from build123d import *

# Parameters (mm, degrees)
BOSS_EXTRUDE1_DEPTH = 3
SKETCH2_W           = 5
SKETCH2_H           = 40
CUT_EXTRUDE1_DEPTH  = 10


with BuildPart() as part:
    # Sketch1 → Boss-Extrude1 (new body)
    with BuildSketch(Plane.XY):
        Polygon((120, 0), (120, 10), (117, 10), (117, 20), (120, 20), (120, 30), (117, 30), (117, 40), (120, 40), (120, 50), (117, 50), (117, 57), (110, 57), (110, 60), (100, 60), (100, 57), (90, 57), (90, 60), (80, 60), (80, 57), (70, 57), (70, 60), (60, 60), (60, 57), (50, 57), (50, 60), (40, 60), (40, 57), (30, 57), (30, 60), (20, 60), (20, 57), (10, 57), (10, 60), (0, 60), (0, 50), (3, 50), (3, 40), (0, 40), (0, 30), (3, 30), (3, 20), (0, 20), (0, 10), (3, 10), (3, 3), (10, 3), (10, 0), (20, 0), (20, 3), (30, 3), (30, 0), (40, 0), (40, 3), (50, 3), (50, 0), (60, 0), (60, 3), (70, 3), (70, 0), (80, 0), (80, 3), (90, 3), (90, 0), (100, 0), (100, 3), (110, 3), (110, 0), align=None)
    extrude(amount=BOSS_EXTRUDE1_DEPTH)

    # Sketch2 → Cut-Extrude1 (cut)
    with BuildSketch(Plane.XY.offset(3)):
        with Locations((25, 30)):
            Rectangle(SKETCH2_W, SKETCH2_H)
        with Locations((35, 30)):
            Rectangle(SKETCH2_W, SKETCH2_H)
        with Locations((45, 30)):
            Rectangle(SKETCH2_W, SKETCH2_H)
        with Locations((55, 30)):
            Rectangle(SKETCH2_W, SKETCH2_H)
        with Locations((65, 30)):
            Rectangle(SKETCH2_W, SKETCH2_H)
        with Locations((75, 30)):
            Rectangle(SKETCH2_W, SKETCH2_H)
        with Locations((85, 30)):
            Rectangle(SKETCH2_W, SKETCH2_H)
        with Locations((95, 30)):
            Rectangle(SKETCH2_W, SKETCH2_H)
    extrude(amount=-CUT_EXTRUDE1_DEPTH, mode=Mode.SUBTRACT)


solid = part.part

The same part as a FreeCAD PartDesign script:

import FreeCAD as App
import Part
import Sketcher

V = App.Vector


def add_polygon(sketch, points):
    """Adds a closed chain of lines whose ends are joined by coincident constraints."""
    first, n = sketch.GeometryCount, len(points)
    for a, b in zip(points, points[1:] + points[:1]):
        sketch.addGeometry(Part.LineSegment(App.Vector(*a, 0), App.Vector(*b, 0)), False)
    for i in range(n):
        sketch.addConstraint(Sketcher.Constraint("Coincident", first + i, 2, first + (i + 1) % n, 1))

doc = App.newDocument("Part")
body = doc.addObject("PartDesign::Body", "Body")

sketch1 = body.newObject("Sketcher::SketchObject", "Sketch")
sketch1.AttachmentSupport = (doc.getObject("XY_Plane"), [""])
sketch1.MapMode = "FlatFace"
add_polygon(sketch1, [(120, 0), (120, 10), (117, 10), (117, 20), (120, 20), (120, 30), (117, 30), (117, 40), (120, 40), (120, 50), (117, 50), (117, 57), (110, 57), (110, 60), (100, 60), (100, 57), (90, 57), (90, 60), (80, 60), (80, 57), (70, 57), (70, 60), (60, 60), (60, 57), (50, 57), (50, 60), (40, 60), (40, 57), (30, 57), (30, 60), (20, 60), (20, 57), (10, 57), (10, 60), (0, 60), (0, 50), (3, 50), (3, 40), (0, 40), (0, 30), (3, 30), (3, 20), (0, 20), (0, 10), (3, 10), (3, 3), (10, 3), (10, 0), (20, 0), (20, 3), (30, 3), (30, 0), (40, 0), (40, 3), (50, 3), (50, 0), (60, 0), (60, 3), (70, 3), (70, 0), (80, 0), (80, 3), (90, 3), (90, 0), (100, 0), (100, 3), (110, 3), (110, 0)])
sketch1.addConstraint([
    Sketcher.Constraint("Vertical", 0),
    Sketcher.Constraint("Horizontal", 1),
    Sketcher.Constraint("Vertical", 2),
    Sketcher.Constraint("Horizontal", 3),
    Sketcher.Constraint("Vertical", 4),
    Sketcher.Constraint("Horizontal", 5),
    Sketcher.Constraint("Vertical", 6),
    Sketcher.Constraint("Horizontal", 7),
    Sketcher.Constraint("Vertical", 8),
    Sketcher.Constraint("Horizontal", 9),
    Sketcher.Constraint("Vertical", 10),
    Sketcher.Constraint("Horizontal", 11),
    Sketcher.Constraint("Vertical", 12),
    Sketcher.Constraint("Horizontal", 13),
    Sketcher.Constraint("Vertical", 14),
    Sketcher.Constraint("Horizontal", 15),
    Sketcher.Constraint("Vertical", 16),
    Sketcher.Constraint("Horizontal", 17),
    Sketcher.Constraint("Vertical", 18),
    Sketcher.Constraint("Horizontal", 19),
    Sketcher.Constraint("Vertical", 20),
    Sketcher.Constraint("Horizontal", 21),
    Sketcher.Constraint("Vertical", 22),
    Sketcher.Constraint("Horizontal", 23),
    Sketcher.Constraint("Vertical", 24),
    Sketcher.Constraint("Horizontal", 25),
    Sketcher.Constraint("Vertical", 26),
    Sketcher.Constraint("Horizontal", 27),
    Sketcher.Constraint("Vertical", 28),
    Sketcher.Constraint("Horizontal", 29),
    Sketcher.Constraint("Vertical", 30),
    Sketcher.Constraint("Horizontal", 31),
    Sketcher.Constraint("Vertical", 32),
    Sketcher.Constraint("Horizontal", 33),
    Sketcher.Constraint("Vertical", 34),
    Sketcher.Constraint("Horizontal", 35),
    Sketcher.Constraint("Vertical", 36),
    Sketcher.Constraint("Horizontal", 37),
    Sketcher.Constraint("Vertical", 38),
    Sketcher.Constraint("Horizontal", 39),
    Sketcher.Constraint("Vertical", 40),
    Sketcher.Constraint("Horizontal", 41),
    Sketcher.Constraint("Vertical", 42),
    Sketcher.Constraint("Horizontal", 43),
    Sketcher.Constraint("Vertical", 44),
    Sketcher.Constraint("Horizontal", 45),
    Sketcher.Constraint("Vertical", 46),
    Sketcher.Constraint("Horizontal", 47),
    Sketcher.Constraint("Vertical", 48),
    Sketcher.Constraint("Horizontal", 49),
    Sketcher.Constraint("Vertical", 50),
    Sketcher.Constraint("Horizontal", 51),
    Sketcher.Constraint("Vertical", 52),
    Sketcher.Constraint("Horizontal", 53),
    Sketcher.Constraint("Vertical", 54),
    Sketcher.Constraint("Horizontal", 55),
    Sketcher.Constraint("Vertical", 56),
    Sketcher.Constraint("Horizontal", 57),
    Sketcher.Constraint("Vertical", 58),
    Sketcher.Constraint("Horizontal", 59),
    Sketcher.Constraint("Vertical", 60),
    Sketcher.Constraint("Horizontal", 61),
    Sketcher.Constraint("Vertical", 62),
    Sketcher.Constraint("Horizontal", 63),
    Sketcher.Constraint("Vertical", 64),
    Sketcher.Constraint("Horizontal", 65),
    Sketcher.Constraint("Vertical", 66),
    Sketcher.Constraint("Horizontal", 67),
    Sketcher.Constraint("PointOnObject", 33, 2, -2),
    Sketcher.Constraint("PointOnObject", 37, 2, -2),
    Sketcher.Constraint("PointOnObject", 41, 2, -2),
    Sketcher.Constraint("PointOnObject", 46, 2, -1),
    Sketcher.Constraint("PointOnObject", 50, 2, -1),
    Sketcher.Constraint("PointOnObject", 54, 2, -1),
    Sketcher.Constraint("PointOnObject", 58, 2, -1),
    Sketcher.Constraint("PointOnObject", 62, 2, -1),
    Sketcher.Constraint("PointOnObject", 66, 2, -1),
    Sketcher.Constraint("Horizontal", 11, 2, 14, 2),
    Sketcher.Constraint("Horizontal", 13, 2, 16, 2),
    Sketcher.Constraint("Horizontal", 15, 2, 18, 2),
    Sketcher.Constraint("Horizontal", 17, 2, 20, 2),
    Sketcher.Constraint("Horizontal", 19, 2, 22, 2),
    Sketcher.Constraint("Horizontal", 21, 2, 24, 2),
    Sketcher.Constraint("Horizontal", 23, 2, 26, 2),
    Sketcher.Constraint("Horizontal", 25, 2, 28, 2),
    Sketcher.Constraint("Horizontal", 27, 2, 30, 2),
    Sketcher.Constraint("Horizontal", 29, 2, 32, 2),
    Sketcher.Constraint("Horizontal", 9, 2, 34, 2),
    Sketcher.Constraint("Horizontal", 7, 2, 36, 2),
    Sketcher.Constraint("Horizontal", 5, 2, 38, 2),
    Sketcher.Constraint("Horizontal", 3, 2, 40, 2),
    Sketcher.Constraint("Horizontal", 1, 2, 42, 2),
    Sketcher.Constraint("Horizontal", 45, 2, 48, 2),
    Sketcher.Constraint("Horizontal", 49, 2, 52, 2),
    Sketcher.Constraint("Horizontal", 53, 2, 56, 2),
    Sketcher.Constraint("Horizontal", 57, 2, 60, 2),
    Sketcher.Constraint("Horizontal", 61, 2, 64, 2),
    Sketcher.Constraint("Vertical", 0, 2, 3, 2),
    Sketcher.Constraint("Vertical", 2, 2, 5, 2),
    Sketcher.Constraint("Vertical", 4, 2, 7, 2),
    Sketcher.Constraint("Vertical", 6, 2, 9, 2),
    Sketcher.Constraint("Vertical", 36, 2, 39, 2),
    Sketcher.Constraint("Vertical", 40, 2, 43, 2),
    Sketcher.Constraint("Vertical", 32, 2, 45, 2),
    Sketcher.Constraint("Vertical", 30, 2, 47, 2),
    Sketcher.Constraint("Vertical", 28, 2, 49, 2),
    Sketcher.Constraint("Vertical", 26, 2, 51, 2),
    Sketcher.Constraint("Vertical", 24, 2, 53, 2),
    Sketcher.Constraint("Vertical", 22, 2, 55, 2),
    Sketcher.Constraint("Vertical", 20, 2, 57, 2),
    Sketcher.Constraint("Vertical", 18, 2, 59, 2),
    Sketcher.Constraint("Vertical", 16, 2, 61, 2),
    Sketcher.Constraint("Vertical", 14, 2, 63, 2),
    Sketcher.Constraint("Vertical", 12, 2, 65, 2),
    Sketcher.Constraint("Equal", 13, 15),
    Sketcher.Constraint("Equal", 15, 17),
    Sketcher.Constraint("Equal", 17, 19),
    Sketcher.Constraint("Equal", 19, 21),
    Sketcher.Constraint("Equal", 21, 23),
    Sketcher.Constraint("Equal", 23, 25),
    Sketcher.Constraint("Equal", 25, 27),
    Sketcher.Constraint("Equal", 27, 29),
    Sketcher.Constraint("Equal", 29, 31),
    Sketcher.Constraint("Equal", 31, 33),
    Sketcher.Constraint("Equal", 9, 35),
    Sketcher.Constraint("Equal", 11, 45),
    Sketcher.Constraint("Equal", 67, 0),
    Sketcher.Constraint("Equal", 0, 2),
    Sketcher.Constraint("Equal", 2, 4),
    Sketcher.Constraint("Equal", 4, 6),
    Sketcher.Constraint("Equal", 6, 8),
    Sketcher.Constraint("Equal", 45, 10),
    Sketcher.Constraint("Equal", 43, 12),
    Sketcher.Constraint("Equal", 10, 44),
    Sketcher.Constraint("DistanceX", 1, 2, 1, 1, 3.0),
    Sketcher.Constraint("DistanceX", 11, 2, 11, 1, 7.0),
])
pad1 = body.newObject("PartDesign::Pad", "Pad")
pad1.Profile = sketch1
pad1.Length = 3

sketch2 = body.newObject("Sketcher::SketchObject", "Sketch001")
sketch2.AttachmentSupport = (doc.getObject("XY_Plane"), [""])
sketch2.MapMode = "FlatFace"
sketch2.AttachmentOffset = App.Placement(V(0, 0, 3), App.Rotation())
add_polygon(sketch2, [(22, 50), (22, 10), (28, 10), (28, 50)])
add_polygon(sketch2, [(32, 50), (32, 10), (38, 10), (38, 50)])
add_polygon(sketch2, [(42, 50), (42, 10), (48, 10), (48, 50)])
add_polygon(sketch2, [(52, 50), (52, 10), (58, 10), (58, 50)])
add_polygon(sketch2, [(62, 50), (62, 10), (68, 10), (68, 50)])
add_polygon(sketch2, [(72, 50), (72, 10), (78, 10), (78, 50)])
add_polygon(sketch2, [(82, 50), (82, 10), (88, 10), (88, 50)])
add_polygon(sketch2, [(92, 50), (92, 10), (98, 10), (98, 50)])
sketch2.addConstraint([
    Sketcher.Constraint("Vertical", 0),
    Sketcher.Constraint("Horizontal", 1),
    Sketcher.Constraint("Vertical", 2),
    Sketcher.Constraint("Horizontal", 3),
    Sketcher.Constraint("Vertical", 4),
    Sketcher.Constraint("Horizontal", 5),
    Sketcher.Constraint("Vertical", 6),
    Sketcher.Constraint("Horizontal", 7),
    Sketcher.Constraint("Vertical", 8),
    Sketcher.Constraint("Horizontal", 9),
    Sketcher.Constraint("Vertical", 10),
    Sketcher.Constraint("Horizontal", 11),
    Sketcher.Constraint("Vertical", 12),
    Sketcher.Constraint("Horizontal", 13),
    Sketcher.Constraint("Vertical", 14),
    Sketcher.Constraint("Horizontal", 15),
    Sketcher.Constraint("Vertical", 16),
    Sketcher.Constraint("Horizontal", 17),
    Sketcher.Constraint("Vertical", 18),
    Sketcher.Constraint("Horizontal", 19),
    Sketcher.Constraint("Vertical", 20),
    Sketcher.Constraint("Horizontal", 21),
    Sketcher.Constraint("Vertical", 22),
    Sketcher.Constraint("Horizontal", 23),
    Sketcher.Constraint("Vertical", 24),
    Sketcher.Constraint("Horizontal", 25),
    Sketcher.Constraint("Vertical", 26),
    Sketcher.Constraint("Horizontal", 27),
    Sketcher.Constraint("Vertical", 28),
    Sketcher.Constraint("Horizontal", 29),
    Sketcher.Constraint("Vertical", 30),
    Sketcher.Constraint("Horizontal", 31),
    Sketcher.Constraint("Horizontal", 1, 2, 4, 2),
    Sketcher.Constraint("Horizontal", 3, 2, 6, 2),
    Sketcher.Constraint("Horizontal", 5, 2, 8, 2),
    Sketcher.Constraint("Horizontal", 7, 2, 10, 2),
    Sketcher.Constraint("Horizontal", 9, 2, 12, 2),
    Sketcher.Constraint("Horizontal", 11, 2, 14, 2),
    Sketcher.Constraint("Horizontal", 13, 2, 16, 2),
    Sketcher.Constraint("Horizontal", 15, 2, 18, 2),
    Sketcher.Constraint("Horizontal", 17, 2, 20, 2),
    Sketcher.Constraint("Horizontal", 19, 2, 22, 2),
    Sketcher.Constraint("Horizontal", 21, 2, 24, 2),
    Sketcher.Constraint("Horizontal", 23, 2, 26, 2),
    Sketcher.Constraint("Horizontal", 25, 2, 28, 2),
    Sketcher.Constraint("Horizontal", 27, 2, 30, 2),
    Sketcher.Constraint("Equal", 3, 5),
    Sketcher.Constraint("Equal", 7, 9),
    Sketcher.Constraint("Equal", 11, 13),
    Sketcher.Constraint("Equal", 15, 17),
    Sketcher.Constraint("Equal", 19, 21),
    Sketcher.Constraint("Equal", 23, 25),
    Sketcher.Constraint("Equal", 27, 29),
    Sketcher.Constraint("DistanceX", 1, 1, 1, 2, 5.0),
    Sketcher.Constraint("DistanceY", 0, 2, 0, 1, 40.0),
    Sketcher.Constraint("DistanceY", -1, 1, 0, 2, 10.0),
    Sketcher.Constraint("DistanceX", 1, 2, 4, 2, 5.0),
    Sketcher.Constraint("DistanceX", 5, 2, 8, 2, 5.0),
    Sketcher.Constraint("DistanceX", 9, 2, 12, 2, 5.0),
    Sketcher.Constraint("DistanceX", 13, 2, 16, 2, 5.0),
    Sketcher.Constraint("DistanceX", 17, 2, 20, 2, 5.0),
    Sketcher.Constraint("DistanceX", 21, 2, 24, 2, 5.0),
    Sketcher.Constraint("DistanceX", 25, 2, 28, 2, 5.0),
    Sketcher.Constraint("DistanceX", -1, 1, 0, 2, 22.5),
])
pocket1 = body.newObject("PartDesign::Pocket", "Pocket")
pocket1.Profile = sketch2
pocket1.Length = 10

doc.recompute()
